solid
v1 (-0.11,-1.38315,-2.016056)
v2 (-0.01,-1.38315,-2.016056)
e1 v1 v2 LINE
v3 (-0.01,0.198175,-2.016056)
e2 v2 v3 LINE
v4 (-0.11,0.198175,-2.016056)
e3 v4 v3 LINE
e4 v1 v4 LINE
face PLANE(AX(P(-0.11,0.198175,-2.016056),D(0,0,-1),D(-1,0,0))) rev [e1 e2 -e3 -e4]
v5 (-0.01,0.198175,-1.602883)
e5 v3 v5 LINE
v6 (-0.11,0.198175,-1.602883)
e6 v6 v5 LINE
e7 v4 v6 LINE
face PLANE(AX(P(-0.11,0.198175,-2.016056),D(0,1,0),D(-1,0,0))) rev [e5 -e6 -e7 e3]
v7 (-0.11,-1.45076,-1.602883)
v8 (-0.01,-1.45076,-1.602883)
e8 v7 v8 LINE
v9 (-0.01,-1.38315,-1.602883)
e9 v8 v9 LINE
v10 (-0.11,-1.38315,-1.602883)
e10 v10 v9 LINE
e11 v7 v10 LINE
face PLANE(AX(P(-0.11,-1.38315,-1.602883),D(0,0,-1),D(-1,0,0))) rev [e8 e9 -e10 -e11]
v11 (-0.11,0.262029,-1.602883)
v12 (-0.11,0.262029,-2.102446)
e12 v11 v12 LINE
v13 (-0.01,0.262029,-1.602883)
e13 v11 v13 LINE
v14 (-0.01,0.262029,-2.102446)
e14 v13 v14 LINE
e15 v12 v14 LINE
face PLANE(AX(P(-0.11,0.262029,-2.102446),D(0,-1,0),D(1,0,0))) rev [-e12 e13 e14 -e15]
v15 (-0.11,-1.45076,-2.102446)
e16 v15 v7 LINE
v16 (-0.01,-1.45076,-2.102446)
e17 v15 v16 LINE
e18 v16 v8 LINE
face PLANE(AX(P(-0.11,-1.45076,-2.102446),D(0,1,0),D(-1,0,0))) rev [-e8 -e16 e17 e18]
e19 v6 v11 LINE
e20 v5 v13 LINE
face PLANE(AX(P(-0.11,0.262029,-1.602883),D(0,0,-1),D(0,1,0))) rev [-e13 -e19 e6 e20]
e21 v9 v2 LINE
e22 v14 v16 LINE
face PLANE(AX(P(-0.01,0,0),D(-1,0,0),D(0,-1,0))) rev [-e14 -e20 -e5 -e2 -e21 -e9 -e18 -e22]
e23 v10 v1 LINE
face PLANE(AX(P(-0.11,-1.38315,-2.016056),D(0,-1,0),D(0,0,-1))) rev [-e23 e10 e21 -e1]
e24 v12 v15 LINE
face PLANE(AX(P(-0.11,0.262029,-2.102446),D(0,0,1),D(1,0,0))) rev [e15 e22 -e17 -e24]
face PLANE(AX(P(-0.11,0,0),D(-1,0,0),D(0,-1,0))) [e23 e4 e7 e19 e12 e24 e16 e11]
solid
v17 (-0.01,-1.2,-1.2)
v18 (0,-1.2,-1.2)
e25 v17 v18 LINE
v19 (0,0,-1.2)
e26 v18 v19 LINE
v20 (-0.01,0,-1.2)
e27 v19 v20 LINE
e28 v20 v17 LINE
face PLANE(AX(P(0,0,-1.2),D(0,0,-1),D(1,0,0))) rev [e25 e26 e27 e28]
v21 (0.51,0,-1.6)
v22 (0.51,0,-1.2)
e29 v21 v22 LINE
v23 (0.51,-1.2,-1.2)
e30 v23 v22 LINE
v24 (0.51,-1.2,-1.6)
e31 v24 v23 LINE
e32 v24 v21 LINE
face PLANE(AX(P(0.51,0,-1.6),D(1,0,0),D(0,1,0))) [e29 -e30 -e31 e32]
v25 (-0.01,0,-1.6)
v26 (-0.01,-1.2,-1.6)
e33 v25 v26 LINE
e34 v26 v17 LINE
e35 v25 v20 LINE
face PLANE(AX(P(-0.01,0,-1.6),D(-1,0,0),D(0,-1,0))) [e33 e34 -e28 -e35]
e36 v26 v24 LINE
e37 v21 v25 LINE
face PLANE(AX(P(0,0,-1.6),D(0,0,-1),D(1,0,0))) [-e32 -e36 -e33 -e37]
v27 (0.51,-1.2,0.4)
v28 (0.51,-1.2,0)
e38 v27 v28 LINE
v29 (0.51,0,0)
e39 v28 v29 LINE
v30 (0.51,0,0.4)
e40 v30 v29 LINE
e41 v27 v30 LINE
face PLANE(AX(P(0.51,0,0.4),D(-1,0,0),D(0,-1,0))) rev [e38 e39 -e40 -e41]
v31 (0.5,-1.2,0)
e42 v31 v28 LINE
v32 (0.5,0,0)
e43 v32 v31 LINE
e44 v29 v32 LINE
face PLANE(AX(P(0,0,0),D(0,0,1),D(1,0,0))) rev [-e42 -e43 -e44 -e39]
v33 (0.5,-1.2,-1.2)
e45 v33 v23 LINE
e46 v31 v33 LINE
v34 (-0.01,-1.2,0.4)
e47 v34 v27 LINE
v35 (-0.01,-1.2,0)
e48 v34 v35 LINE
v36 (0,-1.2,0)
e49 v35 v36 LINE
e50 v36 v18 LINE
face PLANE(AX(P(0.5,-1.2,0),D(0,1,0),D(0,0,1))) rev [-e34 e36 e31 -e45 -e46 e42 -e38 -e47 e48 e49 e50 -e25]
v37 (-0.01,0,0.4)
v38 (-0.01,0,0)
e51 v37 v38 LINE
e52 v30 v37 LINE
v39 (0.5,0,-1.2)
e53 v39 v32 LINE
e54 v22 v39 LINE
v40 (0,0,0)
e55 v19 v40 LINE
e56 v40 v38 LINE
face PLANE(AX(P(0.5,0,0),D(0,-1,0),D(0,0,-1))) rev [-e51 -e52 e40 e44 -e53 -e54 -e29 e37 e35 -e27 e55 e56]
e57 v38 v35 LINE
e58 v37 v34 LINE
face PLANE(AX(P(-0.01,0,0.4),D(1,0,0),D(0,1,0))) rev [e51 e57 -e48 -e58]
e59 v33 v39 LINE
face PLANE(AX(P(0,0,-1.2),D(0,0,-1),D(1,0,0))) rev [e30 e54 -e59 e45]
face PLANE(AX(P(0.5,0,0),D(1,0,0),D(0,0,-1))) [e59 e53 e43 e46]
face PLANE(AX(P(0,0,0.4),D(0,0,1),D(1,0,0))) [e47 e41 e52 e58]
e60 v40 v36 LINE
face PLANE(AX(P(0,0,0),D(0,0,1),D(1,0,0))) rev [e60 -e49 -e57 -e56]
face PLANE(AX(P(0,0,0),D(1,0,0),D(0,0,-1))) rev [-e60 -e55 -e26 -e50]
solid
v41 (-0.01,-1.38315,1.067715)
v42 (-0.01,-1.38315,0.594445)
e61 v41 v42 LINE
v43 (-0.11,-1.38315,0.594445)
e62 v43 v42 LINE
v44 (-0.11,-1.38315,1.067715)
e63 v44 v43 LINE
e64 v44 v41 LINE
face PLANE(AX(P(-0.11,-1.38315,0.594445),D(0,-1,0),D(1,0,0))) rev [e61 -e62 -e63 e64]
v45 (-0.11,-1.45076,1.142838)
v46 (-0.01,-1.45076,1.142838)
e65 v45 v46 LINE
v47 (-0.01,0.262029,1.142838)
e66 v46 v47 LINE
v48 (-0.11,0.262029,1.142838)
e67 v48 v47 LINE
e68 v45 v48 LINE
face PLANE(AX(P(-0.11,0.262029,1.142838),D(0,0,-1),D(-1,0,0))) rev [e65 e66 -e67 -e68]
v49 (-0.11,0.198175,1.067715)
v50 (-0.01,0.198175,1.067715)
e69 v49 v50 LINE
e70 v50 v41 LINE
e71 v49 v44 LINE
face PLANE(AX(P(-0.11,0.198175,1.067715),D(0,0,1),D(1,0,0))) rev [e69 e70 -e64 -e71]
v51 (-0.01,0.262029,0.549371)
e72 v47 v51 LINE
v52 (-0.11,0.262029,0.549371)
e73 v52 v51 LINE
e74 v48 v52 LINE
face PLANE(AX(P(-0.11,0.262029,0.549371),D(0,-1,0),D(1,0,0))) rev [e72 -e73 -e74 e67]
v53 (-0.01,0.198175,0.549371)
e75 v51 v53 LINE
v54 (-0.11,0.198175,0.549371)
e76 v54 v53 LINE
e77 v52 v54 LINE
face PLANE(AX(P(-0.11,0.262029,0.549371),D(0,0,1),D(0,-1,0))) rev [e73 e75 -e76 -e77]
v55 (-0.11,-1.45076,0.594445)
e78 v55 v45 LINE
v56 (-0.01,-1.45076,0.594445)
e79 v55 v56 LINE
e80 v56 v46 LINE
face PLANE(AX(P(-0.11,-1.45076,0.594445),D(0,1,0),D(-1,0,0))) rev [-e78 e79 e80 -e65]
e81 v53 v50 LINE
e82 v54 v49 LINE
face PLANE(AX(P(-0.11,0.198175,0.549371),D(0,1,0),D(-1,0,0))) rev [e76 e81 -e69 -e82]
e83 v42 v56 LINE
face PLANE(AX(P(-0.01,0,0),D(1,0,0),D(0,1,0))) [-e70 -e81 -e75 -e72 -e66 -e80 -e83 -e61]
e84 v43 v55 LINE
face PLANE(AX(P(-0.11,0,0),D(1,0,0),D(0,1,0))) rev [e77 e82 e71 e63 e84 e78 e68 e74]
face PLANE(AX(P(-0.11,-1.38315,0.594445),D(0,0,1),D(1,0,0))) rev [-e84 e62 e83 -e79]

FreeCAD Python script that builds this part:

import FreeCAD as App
import Part
import Sketcher

V = App.Vector
Q = App.Units.Quantity

doc = App.newDocument("Part")
body = doc.addObject("PartDesign::Body", "Body")

sketch1 = doc.addObject("Sketcher::SketchObject", "Sketch")
body.addObject(sketch1)
sketch1.AttachmentSupport = (doc.YZ_Plane, [""])
sketch1.MapMode = "FlatFace"
sketch1.addGeometry(Part.LineSegment(V(0, 0, 0), V(-1.2, 0, 0)), False)
sketch1.addGeometry(Part.LineSegment(V(-1.2, 0, 0), V(-1.2, -1.2, 0)), False)
sketch1.addGeometry(Part.LineSegment(V(-1.2, -1.2, 0), V(0, -1.2, 0)), False)
sketch1.addGeometry(Part.LineSegment(V(0, -1.2, 0), V(0, 0, 0)), False)
sketch1.addConstraint(Sketcher.Constraint("Coincident", 0, 2, 1, 1))
sketch1.addConstraint(Sketcher.Constraint("Coincident", 1, 2, 2, 1))
sketch1.addConstraint(Sketcher.Constraint("Coincident", 2, 2, 3, 1))
sketch1.addConstraint(Sketcher.Constraint("Coincident", 3, 2, 0, 1))
sketch1.addConstraint(Sketcher.Constraint("Horizontal", 0))
sketch1.addConstraint(Sketcher.Constraint("Vertical", 1))
sketch1.addConstraint(Sketcher.Constraint("Horizontal", 2))
sketch1.addConstraint(Sketcher.Constraint("Vertical", 3))
sketch1.addConstraint(Sketcher.Constraint("Coincident", 3, 2, -1, 1))
sketch1.addConstraint(Sketcher.Constraint("Equal", 2, 1))
sketch1.addConstraint(Sketcher.Constraint("DistanceX", 0, 2, 0, 1, Q("1.2 mm")))
pad1 = doc.addObject("PartDesign::Pad", "Pad")
body.addObject(pad1)
pad1.Profile = sketch1
pad1.Length = 0.5

sketch2 = doc.addObject("Sketcher::SketchObject", "Sketch001")
body.addObject(sketch2)
sketch2.AttachmentSupport = (doc.XY_Plane, [""])
sketch2.MapMode = "FlatFace"
sketch2.addGeometry(Part.LineSegment(V(0, 0, 0), V(0, -1.2, 0)), False)
sketch2.addGeometry(Part.LineSegment(V(0, -1.2, 0), V(0.5, -1.2, 0)), False)
sketch2.addGeometry(Part.LineSegment(V(0.5, -1.2, 0), V(0.5, 0, 0)), False)
sketch2.addGeometry(Part.LineSegment(V(0.5, 0, 0), V(0, 0, 0)), False)
sketch2.addConstraint(Sketcher.Constraint("Coincident", 0, 2, 1, 1))
sketch2.addConstraint(Sketcher.Constraint("Coincident", 1, 2, 2, 1))
sketch2.addConstraint(Sketcher.Constraint("Coincident", 2, 2, 3, 1))
sketch2.addConstraint(Sketcher.Constraint("Coincident", 3, 2, 0, 1))
sketch2.addConstraint(Sketcher.Constraint("Vertical", 0))
sketch2.addConstraint(Sketcher.Constraint("Horizontal", 1))
sketch2.addConstraint(Sketcher.Constraint("Vertical", 2))
sketch2.addConstraint(Sketcher.Constraint("Horizontal", 3))
sketch2.addConstraint(Sketcher.Constraint("PointOnObject", 2, 2, -1))
sketch2.addConstraint(Sketcher.Constraint("DistanceY", 0, 2, 0, 1, Q("1.2 mm")))
sketch2.addConstraint(Sketcher.Constraint("DistanceX", 1, 1, 1, 2, Q("0.52 mm")))
sketch2.addConstraint(Sketcher.Constraint("DistanceX", 0, 2, -1, 1, Q("0.01 mm")))
pad2 = doc.addObject("PartDesign::Pad", "Pad001")
body.addObject(pad2)
pad2.Profile = sketch2
pad2.Length = 0.4
doc.recompute()

datumplane = doc.addObject("PartDesign::Plane", "DatumPlane")
body.addObject(datumplane)
datumplane.AttachmentSupport = (doc.XY_Plane, [""])
datumplane.MapMode = "FlatFace"
datumplane.AttachmentOffset = App.Placement(V(0, 0, -0.6), App.Rotation())
mirrored = doc.addObject("PartDesign::Mirrored", "Mirrored")
body.addObject(mirrored)
mirrored.Originals = [pad2]
mirrored.MirrorPlane = (datumplane, [""])
body.Tip = mirrored
body2 = doc.addObject("PartDesign::Body", "Body001")

sketch3 = doc.addObject("Sketcher::SketchObject", "Sketch002")
body2.addObject(sketch3)
sketch3.AttachmentSupport = (doc.getObject("YZ_Plane001"), [""])
sketch3.MapMode = "FlatFace"
sketch3.AttachmentOffset = App.Placement(V(0, 0, -0.01), App.Rotation())
sketch3.addGeometry(Part.LineSegment(V(0.2, -1.6, 0), V(0.26, -1.6, 0)), False)
sketch3.addGeometry(Part.LineSegment(V(0.26, -1.6, 0), V(0.26, -2.1, 0)), False)
sketch3.addGeometry(Part.LineSegment(V(0.26, -2.1, 0), V(-1.45, -2.1, 0)), False)
sketch3.addGeometry(Part.LineSegment(V(-1.45, -2.1, 0), V(-1.45, -1.6, 0)), False)
sketch3.addGeometry(Part.LineSegment(V(-1.45, -1.6, 0), V(-1.38, -1.6, 0)), False)
sketch3.addGeometry(Part.LineSegment(V(-1.38, -1.6, 0), V(-1.38, -2.02, 0)), False)
sketch3.addGeometry(Part.LineSegment(V(-1.38, -2.02, 0), V(0.2, -2.02, 0)), False)
sketch3.addGeometry(Part.LineSegment(V(0.2, -2.02, 0), V(0.2, -1.6, 0)), False)
sketch3.addConstraint(Sketcher.Constraint("Coincident", 0, 2, 1, 1))
sketch3.addConstraint(Sketcher.Constraint("Coincident", 1, 2, 2, 1))
sketch3.addConstraint(Sketcher.Constraint("Coincident", 2, 2, 3, 1))
sketch3.addConstraint(Sketcher.Constraint("Coincident", 3, 2, 4, 1))
sketch3.addConstraint(Sketcher.Constraint("Coincident", 4, 2, 5, 1))
sketch3.addConstraint(Sketcher.Constraint("Coincident", 5, 2, 6, 1))
sketch3.addConstraint(Sketcher.Constraint("Coincident", 6, 2, 7, 1))
sketch3.addConstraint(Sketcher.Constraint("Coincident", 7, 2, 0, 1))
sketch3.addConstraint(Sketcher.Constraint("Horizontal", 0))
sketch3.addConstraint(Sketcher.Constraint("Vertical", 1))
sketch3.addConstraint(Sketcher.Constraint("Horizontal", 2))
sketch3.addConstraint(Sketcher.Constraint("Vertical", 3))
sketch3.addConstraint(Sketcher.Constraint("Horizontal", 4))
sketch3.addConstraint(Sketcher.Constraint("Vertical", 5))
sketch3.addConstraint(Sketcher.Constraint("Horizontal", 6))
sketch3.addConstraint(Sketcher.Constraint("Vertical", 7))
sketch3.addConstraint(Sketcher.Constraint("Horizontal", 0, 2, 3, 2))
sketch3.addConstraint(Sketcher.Constraint("DistanceX", 2, 2, 2, 1, Q("1.712789 mm")))
sketch3.addConstraint(Sketcher.Constraint("DistanceX", 4, 1, 4, 2, Q("0.06761 mm")))
sketch3.addConstraint(Sketcher.Constraint("DistanceX", 0, 1, 0, 2, Q("0.063854 mm")))
sketch3.addConstraint(Sketcher.Constraint("DistanceY", 1, 2, 1, 1, Q("0.499563 mm")))
sketch3.addConstraint(Sketcher.Constraint("DistanceY", 5, 2, 5, 1, Q("0.413173 mm")))
sketch3.addConstraint(Sketcher.Constraint("DistanceX", -1, 1, 0, 2, Q("0.262029 mm")))
sketch3.addConstraint(Sketcher.Constraint("DistanceY", 0, 2, -1, 1, Q("1.602883 mm")))
pad3 = doc.addObject("PartDesign::Pad", "Pad002")
body2.addObject(pad3)
pad3.Profile = sketch3
pad3.Length = 0.1
pad3.Reversed = True
body3 = doc.addObject("PartDesign::Body", "Body002")

sketch4 = doc.addObject("Sketcher::SketchObject", "Sketch003")
body3.addObject(sketch4)
sketch4.AttachmentSupport = (doc.getObject("YZ_Plane002"), [""])
sketch4.MapMode = "FlatFace"
sketch4.AttachmentOffset = App.Placement(V(0, 0, -0.01), App.Rotation())
sketch4.addGeometry(Part.LineSegment(V(-1.45, 1.14, 0), V(0.26, 1.14, 0)), False)
sketch4.addGeometry(Part.LineSegment(V(0.26, 1.14, 0), V(0.26, 0.55, 0)), False)
sketch4.addGeometry(Part.LineSegment(V(0.26, 0.55, 0), V(0.2, 0.55, 0)), False)
sketch4.addGeometry(Part.LineSegment(V(0.2, 0.55, 0), V(0.2, 1.07, 0)), False)
sketch4.addGeometry(Part.LineSegment(V(0.2, 1.07, 0), V(-1.38, 1.07, 0)), False)
sketch4.addGeometry(Part.LineSegment(V(-1.38, 1.07, 0), V(-1.38, 0.59, 0)), False)
sketch4.addGeometry(Part.LineSegment(V(-1.38, 0.59, 0), V(-1.45, 0.59, 0)), False)
sketch4.addGeometry(Part.LineSegment(V(-1.45, 0.59, 0), V(-1.45, 1.14, 0)), False)
sketch4.addConstraint(Sketcher.Constraint("Coincident", 0, 2, 1, 1))
sketch4.addConstraint(Sketcher.Constraint("Coincident", 1, 2, 2, 1))
sketch4.addConstraint(Sketcher.Constraint("Coincident", 2, 2, 3, 1))
sketch4.addConstraint(Sketcher.Constraint("Coincident", 3, 2, 4, 1))
sketch4.addConstraint(Sketcher.Constraint("Coincident", 4, 2, 5, 1))
sketch4.addConstraint(Sketcher.Constraint("Coincident", 5, 2, 6, 1))
sketch4.addConstraint(Sketcher.Constraint("Coincident", 6, 2, 7, 1))
sketch4.addConstraint(Sketcher.Constraint("Coincident", 7, 2, 0, 1))
sketch4.addConstraint(Sketcher.Constraint("Horizontal", 0))
sketch4.addConstraint(Sketcher.Constraint("Vertical", 1))
sketch4.addConstraint(Sketcher.Constraint("Horizontal", 2))
sketch4.addConstraint(Sketcher.Constraint("Vertical", 3))
sketch4.addConstraint(Sketcher.Constraint("Horizontal", 4))
sketch4.addConstraint(Sketcher.Constraint("Vertical", 5))
sketch4.addConstraint(Sketcher.Constraint("Horizontal", 6))
sketch4.addConstraint(Sketcher.Constraint("Vertical", 7))
sketch4.addConstraint(Sketcher.Constraint("DistanceX", 0, 1, 0, 2, Q("1.712789 mm")))
sketch4.addConstraint(Sketcher.Constraint("DistanceX", 6, 2, 6, 1, Q("0.06761 mm")))
sketch4.addConstraint(Sketcher.Constraint("DistanceY", 5, 2, 5, 1, Q("0.473271 mm")))
sketch4.addConstraint(Sketcher.Constraint("DistanceX", 2, 2, 2, 1, Q("0.063854 mm")))
sketch4.addConstraint(Sketcher.Constraint("DistanceY", 1, 2, 1, 1, Q("0.593466 mm")))
sketch4.addConstraint(Sketcher.Constraint("DistanceY", 3, 1, 3, 2, Q("0.518344 mm")))
sketch4.addConstraint(Sketcher.Constraint("DistanceX", -1, 1, 0, 2, Q("0.262029 mm")))
sketch4.addConstraint(Sketcher.Constraint("DistanceY", -1, 1, 1, 2, Q("0.549371 mm")))
pad4 = doc.addObject("PartDesign::Pad", "Pad003")
body3.addObject(pad4)
pad4.Profile = sketch4
pad4.Length = 0.1
pad4.Reversed = True

doc.recompute()
